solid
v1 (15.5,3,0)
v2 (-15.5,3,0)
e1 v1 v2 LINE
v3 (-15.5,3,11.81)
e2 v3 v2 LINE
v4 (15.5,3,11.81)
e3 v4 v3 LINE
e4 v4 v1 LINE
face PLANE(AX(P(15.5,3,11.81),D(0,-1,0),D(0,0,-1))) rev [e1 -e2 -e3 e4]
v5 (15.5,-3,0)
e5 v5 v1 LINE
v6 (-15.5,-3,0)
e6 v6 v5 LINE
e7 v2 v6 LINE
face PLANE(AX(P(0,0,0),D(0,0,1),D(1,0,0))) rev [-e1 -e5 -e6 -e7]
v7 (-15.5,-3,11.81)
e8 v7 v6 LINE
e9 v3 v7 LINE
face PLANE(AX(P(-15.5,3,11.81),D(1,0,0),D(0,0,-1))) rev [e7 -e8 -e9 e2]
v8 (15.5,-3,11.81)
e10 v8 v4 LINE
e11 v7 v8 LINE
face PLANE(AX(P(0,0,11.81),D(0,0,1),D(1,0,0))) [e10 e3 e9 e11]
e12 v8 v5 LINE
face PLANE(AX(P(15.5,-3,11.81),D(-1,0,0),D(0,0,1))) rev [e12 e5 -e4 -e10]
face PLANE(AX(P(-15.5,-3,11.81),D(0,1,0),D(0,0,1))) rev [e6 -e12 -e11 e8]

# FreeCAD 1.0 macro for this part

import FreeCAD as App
import Part
import Sketcher

V = App.Vector
Q = App.Units.Quantity


def add_polygon(sketch, points):
    """Adds a closed chain of lines whose ends are joined by coincident constraints."""
    first, n = sketch.GeometryCount, len(points)
    for a, b in zip(points, points[1:] + points[:1]):
        sketch.addGeometry(Part.LineSegment(App.Vector(*a, 0), App.Vector(*b, 0)), False)
    for i in range(n):
        sketch.addConstraint(Sketcher.Constraint("Coincident", first + i, 2, first + (i + 1) % n, 1))

doc = App.newDocument("Part")
body = doc.addObject("PartDesign::Body", "Body")

# Sketch on XY plane
sketch1 = body.newObject("Sketcher::SketchObject", "Sketch")
sketch1.AttachmentSupport = (doc.getObject("XY_Plane"), [""])
sketch1.MapMode = "FlatFace"
add_polygon(sketch1, [(-15.5, 3), (-15.5, -3), (15.5, -3), (15.5, 3)])  # lines 0-3
sketch1.addConstraint([
    Sketcher.Constraint("Vertical", 0),
    Sketcher.Constraint("Horizontal", 1),
    Sketcher.Constraint("Vertical", 2),
    Sketcher.Constraint("Horizontal", 3),
    Sketcher.Constraint("Symmetric", 0, 2, 2, 2, -1, 1),
    Sketcher.Constraint("DistanceX", 1, 1, 1, 2, Q("31 mm")),
    Sketcher.Constraint("DistanceY", 0, 2, 0, 1, Q("6 mm")),
])
pad1 = body.newObject("PartDesign::Pad", "Pad")
pad1.Profile = sketch1
pad1.Length = 11.81

doc.recompute()
